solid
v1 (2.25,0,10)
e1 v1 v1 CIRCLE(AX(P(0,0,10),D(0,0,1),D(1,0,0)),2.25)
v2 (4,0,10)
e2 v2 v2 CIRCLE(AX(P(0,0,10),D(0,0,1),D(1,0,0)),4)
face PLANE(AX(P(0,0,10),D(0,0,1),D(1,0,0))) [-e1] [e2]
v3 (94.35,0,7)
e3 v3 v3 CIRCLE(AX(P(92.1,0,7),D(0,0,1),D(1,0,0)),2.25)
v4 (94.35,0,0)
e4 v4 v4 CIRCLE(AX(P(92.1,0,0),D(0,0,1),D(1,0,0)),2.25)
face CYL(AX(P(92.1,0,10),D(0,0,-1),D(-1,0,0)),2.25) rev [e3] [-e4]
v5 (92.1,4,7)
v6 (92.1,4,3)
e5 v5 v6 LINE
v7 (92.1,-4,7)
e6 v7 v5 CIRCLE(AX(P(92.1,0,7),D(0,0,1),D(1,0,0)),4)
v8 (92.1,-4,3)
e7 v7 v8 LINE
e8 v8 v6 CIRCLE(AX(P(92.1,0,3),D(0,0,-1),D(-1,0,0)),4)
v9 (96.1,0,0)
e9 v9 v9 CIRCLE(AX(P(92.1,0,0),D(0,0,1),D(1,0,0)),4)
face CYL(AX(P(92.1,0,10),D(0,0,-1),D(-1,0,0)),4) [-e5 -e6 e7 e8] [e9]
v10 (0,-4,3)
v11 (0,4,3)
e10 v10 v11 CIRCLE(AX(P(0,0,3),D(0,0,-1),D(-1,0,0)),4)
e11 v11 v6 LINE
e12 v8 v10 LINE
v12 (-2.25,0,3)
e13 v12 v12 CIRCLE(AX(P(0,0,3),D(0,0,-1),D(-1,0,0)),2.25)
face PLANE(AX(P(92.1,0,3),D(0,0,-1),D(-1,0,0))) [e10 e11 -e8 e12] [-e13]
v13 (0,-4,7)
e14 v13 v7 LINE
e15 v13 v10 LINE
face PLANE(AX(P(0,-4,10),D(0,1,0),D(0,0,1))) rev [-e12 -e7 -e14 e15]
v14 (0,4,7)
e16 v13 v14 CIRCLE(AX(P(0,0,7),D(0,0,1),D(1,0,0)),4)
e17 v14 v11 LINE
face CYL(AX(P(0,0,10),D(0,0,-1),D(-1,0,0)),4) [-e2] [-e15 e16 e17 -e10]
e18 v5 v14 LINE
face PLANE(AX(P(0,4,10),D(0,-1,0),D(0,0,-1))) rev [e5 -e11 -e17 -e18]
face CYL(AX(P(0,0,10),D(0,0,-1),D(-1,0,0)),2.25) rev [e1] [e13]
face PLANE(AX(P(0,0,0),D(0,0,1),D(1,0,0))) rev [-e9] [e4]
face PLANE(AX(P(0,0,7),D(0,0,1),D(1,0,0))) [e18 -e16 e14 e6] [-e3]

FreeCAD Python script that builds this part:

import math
import FreeCAD as App
import Part
import Sketcher
from FreeCAD import Vector
Q = App.Units.Quantity

doc = App.newDocument("Part")
body = doc.addObject("PartDesign::Body", "Body")

sketch1 = body.newObject("Sketcher::SketchObject", "Sketch")
sketch1.AttachmentSupport = (doc.getObject("XY_Plane"), [""])
sketch1.MapMode = "FlatFace"
sketch1.addGeometry(Part.LineSegment(Vector(92.1, 4, 0), Vector(0, 4, 0)), False)
sketch1.addGeometry(Part.ArcOfCircle(Part.Circle(Vector(0, 0, 0), Vector(0, 0, 1), 4), math.radians(90), math.radians(270)), False)
sketch1.addGeometry(Part.LineSegment(Vector(0, -4, 0), Vector(92.1, -4, 0)), False)
sketch1.addGeometry(Part.ArcOfCircle(Part.Circle(Vector(92.1, 0, 0), Vector(0, 0, 1), 4), math.radians(-90), math.radians(90)), False)
sketch1.addGeometry(Part.Circle(Vector(92.1, 0, 0), Vector(0, 0, 1), 2.2), False)
sketch1.addGeometry(Part.Circle(Vector(0, 0, 0), Vector(0, 0, 1), 2.2), False)
sketch1.addConstraint(Sketcher.Constraint("Tangent", 0, 2, 1, 1))
sketch1.addConstraint(Sketcher.Constraint("Tangent", 1, 2, 2, 1))
sketch1.addConstraint(Sketcher.Constraint("Tangent", 2, 2, 3, 1))
sketch1.addConstraint(Sketcher.Constraint("Tangent", 3, 2, 0, 1))
sketch1.addConstraint(Sketcher.Constraint("Horizontal", 0))
sketch1.addConstraint(Sketcher.Constraint("Horizontal", 2))
sketch1.addConstraint(Sketcher.Constraint("Coincident", 1, 3, -1, 1))
sketch1.addConstraint(Sketcher.Constraint("Coincident", 5, 3, -1, 1))
sketch1.addConstraint(Sketcher.Constraint("Coincident", 4, 3, 3, 3))
sketch1.addConstraint(Sketcher.Constraint("Equal", 4, 5))
sketch1.addConstraint(Sketcher.Constraint("Radius", 1, Q("4 mm")))
sketch1.addConstraint(Sketcher.Constraint("Diameter", 4, Q("4.5 mm")))
sketch1.addConstraint(Sketcher.Constraint("DistanceX", 0, 2, 0, 1, Q("92.1 mm")))
pad1 = body.newObject("PartDesign::Pad", "Pad")
pad1.Profile = sketch1
pad1.Length = 10

sketch2 = body.newObject("Sketcher::SketchObject", "Sketch001")
sketch2.AttachmentSupport = (doc.getObject("XY_Plane"), [""])
sketch2.MapMode = "FlatFace"
sketch2.AttachmentOffset = App.Placement(Vector(0, 0, 7), App.Rotation())
sketch2.addGeometry(Part.Circle(Vector(0, 0, 0), Vector(0, 0, 1), 104), False)
sketch2.addGeometry(Part.Circle(Vector(0, 0, 0), Vector(0, 0, 1), 4), False)
sketch2.addConstraint(Sketcher.Constraint("Coincident", 0, 3, -1, 1))
sketch2.addConstraint(Sketcher.Constraint("Coincident", 1, 3, -1, 1))
sketch2.addConstraint(Sketcher.Constraint("Diameter", 0, Q("208 mm")))
sketch2.addConstraint(Sketcher.Constraint("Diameter", 1, Q("8 mm")))
pocket1 = body.newObject("PartDesign::Pocket", "Pocket")
pocket1.Profile = sketch2
pocket1.Length = 3
pocket1.Reversed = True

sketch3 = body.newObject("Sketcher::SketchObject", "Sketch002")
sketch3.AttachmentSupport = (doc.getObject("XY_Plane"), [""])
sketch3.MapMode = "FlatFace"
sketch3.addGeometry(Part.Circle(Vector(92.1, 0, 0), Vector(0, 0, 1), 104), False)
sketch3.addGeometry(Part.Circle(Vector(92.1, 0, 0), Vector(0, 0, 1), 4), False)
sketch3.addConstraint(Sketcher.Constraint("Coincident", 1, 3, 0, 3))
sketch3.addConstraint(Sketcher.Constraint("PointOnObject", 0, 3, -1))
sketch3.addConstraint(Sketcher.Constraint("Diameter", 0, Q("208 mm")))
sketch3.addConstraint(Sketcher.Constraint("Diameter", 1, Q("8 mm")))
sketch3.addConstraint(Sketcher.Constraint("DistanceX", -1, 1, 0, 3, Q("92.1 mm")))
pocket2 = body.newObject("PartDesign::Pocket", "Pocket001")
pocket2.Profile = sketch3
pocket2.Length = 3
pocket2.Reversed = True

doc.recompute()
